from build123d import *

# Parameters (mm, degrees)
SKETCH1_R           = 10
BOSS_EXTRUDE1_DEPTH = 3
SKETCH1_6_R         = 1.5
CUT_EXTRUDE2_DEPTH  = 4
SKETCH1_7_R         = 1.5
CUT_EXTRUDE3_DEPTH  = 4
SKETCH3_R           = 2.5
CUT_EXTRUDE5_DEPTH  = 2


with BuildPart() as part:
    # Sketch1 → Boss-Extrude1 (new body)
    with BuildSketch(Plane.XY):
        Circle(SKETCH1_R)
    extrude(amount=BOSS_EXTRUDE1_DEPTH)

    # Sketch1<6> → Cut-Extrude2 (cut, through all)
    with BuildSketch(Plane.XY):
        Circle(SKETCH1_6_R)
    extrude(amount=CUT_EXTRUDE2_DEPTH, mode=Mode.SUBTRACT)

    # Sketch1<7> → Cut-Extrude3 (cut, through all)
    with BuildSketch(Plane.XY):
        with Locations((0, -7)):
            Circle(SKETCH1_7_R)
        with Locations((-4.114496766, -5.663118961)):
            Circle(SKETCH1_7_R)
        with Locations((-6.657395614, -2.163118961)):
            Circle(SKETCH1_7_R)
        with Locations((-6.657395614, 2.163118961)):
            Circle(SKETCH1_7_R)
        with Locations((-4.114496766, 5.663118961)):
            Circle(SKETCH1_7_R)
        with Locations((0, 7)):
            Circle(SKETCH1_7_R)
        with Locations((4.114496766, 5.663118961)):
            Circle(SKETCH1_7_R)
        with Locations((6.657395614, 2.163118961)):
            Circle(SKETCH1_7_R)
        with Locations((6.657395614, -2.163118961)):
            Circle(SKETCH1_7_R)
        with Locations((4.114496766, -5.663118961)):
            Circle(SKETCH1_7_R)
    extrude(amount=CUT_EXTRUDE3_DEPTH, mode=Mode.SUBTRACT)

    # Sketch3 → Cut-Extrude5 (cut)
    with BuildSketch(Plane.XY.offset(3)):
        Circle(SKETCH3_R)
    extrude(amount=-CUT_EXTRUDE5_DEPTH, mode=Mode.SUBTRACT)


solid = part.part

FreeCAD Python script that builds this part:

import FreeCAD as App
import Part
import Sketcher

doc = App.newDocument("Part")
body = doc.addObject("PartDesign::Body", "Body")

sketch1 = body.newObject("Sketcher::SketchObject", "Sketch")
sketch1.AttachmentSupport = (doc.getObject("XY_Plane"), [""])
sketch1.MapMode = "FlatFace"
sketch1.addGeometry(Part.Circle(App.Vector(0, 0, 0), App.Vector(0, 0, 1), 10), False)
sketch1.addConstraint([
    Sketcher.Constraint("Coincident", 0, 3, -1, 1),
    Sketcher.Constraint("Diameter", 0, 20.0),
])
pad1 = body.newObject("PartDesign::Pad", "Pad")
pad1.Profile = sketch1
pad1.Length = 3

sketch2 = body.newObject("Sketcher::SketchObject", "Sketch001")
sketch2.AttachmentSupport = (doc.getObject("XY_Plane"), [""])
sketch2.MapMode = "FlatFace"
sketch2.addGeometry(Part.Circle(App.Vector(0, 0, 0), App.Vector(0, 0, 1), 1.5), False)
sketch2.addConstraint([
    Sketcher.Constraint("Coincident", 0, 3, -1, 1),
    Sketcher.Constraint("Diameter", 0, 3.0),
])
pocket1 = body.newObject("PartDesign::Pocket", "Pocket")
pocket1.Profile = sketch2
pocket1.Type = "ThroughAll"
pocket1.Reversed = True

sketch3 = body.newObject("Sketcher::SketchObject", "Sketch002")
sketch3.AttachmentSupport = (doc.getObject("XY_Plane"), [""])
sketch3.MapMode = "FlatFace"
sketch3.addGeometry([
    Part.Circle(App.Vector(0, -7, 0), App.Vector(0, 0, 1), 1.5),
    Part.Circle(App.Vector(-4.1, -5.7, 0), App.Vector(0, 0, 1), 1.5),
    Part.Circle(App.Vector(-6.7, -2.2, 0), App.Vector(0, 0, 1), 1.5),
    Part.Circle(App.Vector(-6.7, 2.2, 0), App.Vector(0, 0, 1), 1.5),
    Part.Circle(App.Vector(-4.1, 5.7, 0), App.Vector(0, 0, 1), 1.5),
    Part.Circle(App.Vector(0, 7, 0), App.Vector(0, 0, 1), 1.5),
    Part.Circle(App.Vector(4.1, 5.7, 0), App.Vector(0, 0, 1), 1.5),
    Part.Circle(App.Vector(6.7, 2.2, 0), App.Vector(0, 0, 1), 1.5),
    Part.Circle(App.Vector(6.7, -2.2, 0), App.Vector(0, 0, 1), 1.5),
    Part.Circle(App.Vector(4.1, -5.7, 0), App.Vector(0, 0, 1), 1.5),
], False)
sketch3.addConstraint([
    Sketcher.Constraint("Equal", 0, 1),
    Sketcher.Constraint("Equal", 1, 2),
    Sketcher.Constraint("Equal", 2, 3),
    Sketcher.Constraint("Equal", 3, 4),
    Sketcher.Constraint("Equal", 4, 5),
    Sketcher.Constraint("Equal", 5, 6),
    Sketcher.Constraint("Equal", 6, 7),
    Sketcher.Constraint("Equal", 7, 8),
    Sketcher.Constraint("Equal", 8, 9),
    Sketcher.Constraint("Symmetric", 0, 3, 5, 3, -1, 1),
    Sketcher.Constraint("Symmetric", 1, 3, 6, 3, -1, 1),
    Sketcher.Constraint("Symmetric", 2, 3, 7, 3, -1, 1),
    Sketcher.Constraint("Symmetric", 3, 3, 8, 3, -1, 1),
    Sketcher.Constraint("Symmetric", 4, 3, 9, 3, -1, 1),
    Sketcher.Constraint("Symmetric", 4, 3, 6, 3, -2),
    Sketcher.Constraint("Symmetric", 3, 3, 7, 3, -2),
    Sketcher.Constraint("PointOnObject", 0, 3, -2),
    Sketcher.Constraint("Diameter", 0, 3.0),
    Sketcher.Constraint("DistanceY", 0, 3, -1, 1, 7.0),
    Sketcher.Constraint("DistanceY", 1, 3, 2, 3, 3.5),
    Sketcher.Constraint("DistanceX", 2, 3, 1, 3, 2.542899),
    Sketcher.Constraint("DistanceY", 1, 3, -1, 1, 5.663119),
    Sketcher.Constraint("DistanceX", 3, 3, 7, 3, 13.314791),
])
pocket2 = body.newObject("PartDesign::Pocket", "Pocket001")
pocket2.Profile = sketch3
pocket2.Type = "ThroughAll"
pocket2.Reversed = True

sketch4 = body.newObject("Sketcher::SketchObject", "Sketch003")
sketch4.AttachmentSupport = (doc.getObject("XY_Plane"), [""])
sketch4.MapMode = "FlatFace"
sketch4.AttachmentOffset = App.Placement(App.Vector(0, 0, 3), App.Rotation())
sketch4.addGeometry(Part.Circle(App.Vector(0, 0, 0), App.Vector(0, 0, 1), 2.5), False)
sketch4.addConstraint([
    Sketcher.Constraint("Coincident", 0, 3, -1, 1),
    Sketcher.Constraint("Diameter", 0, 5.0),
])
pocket3 = body.newObject("PartDesign::Pocket", "Pocket002")
pocket3.Profile = sketch4
pocket3.Length = 2

doc.recompute()
